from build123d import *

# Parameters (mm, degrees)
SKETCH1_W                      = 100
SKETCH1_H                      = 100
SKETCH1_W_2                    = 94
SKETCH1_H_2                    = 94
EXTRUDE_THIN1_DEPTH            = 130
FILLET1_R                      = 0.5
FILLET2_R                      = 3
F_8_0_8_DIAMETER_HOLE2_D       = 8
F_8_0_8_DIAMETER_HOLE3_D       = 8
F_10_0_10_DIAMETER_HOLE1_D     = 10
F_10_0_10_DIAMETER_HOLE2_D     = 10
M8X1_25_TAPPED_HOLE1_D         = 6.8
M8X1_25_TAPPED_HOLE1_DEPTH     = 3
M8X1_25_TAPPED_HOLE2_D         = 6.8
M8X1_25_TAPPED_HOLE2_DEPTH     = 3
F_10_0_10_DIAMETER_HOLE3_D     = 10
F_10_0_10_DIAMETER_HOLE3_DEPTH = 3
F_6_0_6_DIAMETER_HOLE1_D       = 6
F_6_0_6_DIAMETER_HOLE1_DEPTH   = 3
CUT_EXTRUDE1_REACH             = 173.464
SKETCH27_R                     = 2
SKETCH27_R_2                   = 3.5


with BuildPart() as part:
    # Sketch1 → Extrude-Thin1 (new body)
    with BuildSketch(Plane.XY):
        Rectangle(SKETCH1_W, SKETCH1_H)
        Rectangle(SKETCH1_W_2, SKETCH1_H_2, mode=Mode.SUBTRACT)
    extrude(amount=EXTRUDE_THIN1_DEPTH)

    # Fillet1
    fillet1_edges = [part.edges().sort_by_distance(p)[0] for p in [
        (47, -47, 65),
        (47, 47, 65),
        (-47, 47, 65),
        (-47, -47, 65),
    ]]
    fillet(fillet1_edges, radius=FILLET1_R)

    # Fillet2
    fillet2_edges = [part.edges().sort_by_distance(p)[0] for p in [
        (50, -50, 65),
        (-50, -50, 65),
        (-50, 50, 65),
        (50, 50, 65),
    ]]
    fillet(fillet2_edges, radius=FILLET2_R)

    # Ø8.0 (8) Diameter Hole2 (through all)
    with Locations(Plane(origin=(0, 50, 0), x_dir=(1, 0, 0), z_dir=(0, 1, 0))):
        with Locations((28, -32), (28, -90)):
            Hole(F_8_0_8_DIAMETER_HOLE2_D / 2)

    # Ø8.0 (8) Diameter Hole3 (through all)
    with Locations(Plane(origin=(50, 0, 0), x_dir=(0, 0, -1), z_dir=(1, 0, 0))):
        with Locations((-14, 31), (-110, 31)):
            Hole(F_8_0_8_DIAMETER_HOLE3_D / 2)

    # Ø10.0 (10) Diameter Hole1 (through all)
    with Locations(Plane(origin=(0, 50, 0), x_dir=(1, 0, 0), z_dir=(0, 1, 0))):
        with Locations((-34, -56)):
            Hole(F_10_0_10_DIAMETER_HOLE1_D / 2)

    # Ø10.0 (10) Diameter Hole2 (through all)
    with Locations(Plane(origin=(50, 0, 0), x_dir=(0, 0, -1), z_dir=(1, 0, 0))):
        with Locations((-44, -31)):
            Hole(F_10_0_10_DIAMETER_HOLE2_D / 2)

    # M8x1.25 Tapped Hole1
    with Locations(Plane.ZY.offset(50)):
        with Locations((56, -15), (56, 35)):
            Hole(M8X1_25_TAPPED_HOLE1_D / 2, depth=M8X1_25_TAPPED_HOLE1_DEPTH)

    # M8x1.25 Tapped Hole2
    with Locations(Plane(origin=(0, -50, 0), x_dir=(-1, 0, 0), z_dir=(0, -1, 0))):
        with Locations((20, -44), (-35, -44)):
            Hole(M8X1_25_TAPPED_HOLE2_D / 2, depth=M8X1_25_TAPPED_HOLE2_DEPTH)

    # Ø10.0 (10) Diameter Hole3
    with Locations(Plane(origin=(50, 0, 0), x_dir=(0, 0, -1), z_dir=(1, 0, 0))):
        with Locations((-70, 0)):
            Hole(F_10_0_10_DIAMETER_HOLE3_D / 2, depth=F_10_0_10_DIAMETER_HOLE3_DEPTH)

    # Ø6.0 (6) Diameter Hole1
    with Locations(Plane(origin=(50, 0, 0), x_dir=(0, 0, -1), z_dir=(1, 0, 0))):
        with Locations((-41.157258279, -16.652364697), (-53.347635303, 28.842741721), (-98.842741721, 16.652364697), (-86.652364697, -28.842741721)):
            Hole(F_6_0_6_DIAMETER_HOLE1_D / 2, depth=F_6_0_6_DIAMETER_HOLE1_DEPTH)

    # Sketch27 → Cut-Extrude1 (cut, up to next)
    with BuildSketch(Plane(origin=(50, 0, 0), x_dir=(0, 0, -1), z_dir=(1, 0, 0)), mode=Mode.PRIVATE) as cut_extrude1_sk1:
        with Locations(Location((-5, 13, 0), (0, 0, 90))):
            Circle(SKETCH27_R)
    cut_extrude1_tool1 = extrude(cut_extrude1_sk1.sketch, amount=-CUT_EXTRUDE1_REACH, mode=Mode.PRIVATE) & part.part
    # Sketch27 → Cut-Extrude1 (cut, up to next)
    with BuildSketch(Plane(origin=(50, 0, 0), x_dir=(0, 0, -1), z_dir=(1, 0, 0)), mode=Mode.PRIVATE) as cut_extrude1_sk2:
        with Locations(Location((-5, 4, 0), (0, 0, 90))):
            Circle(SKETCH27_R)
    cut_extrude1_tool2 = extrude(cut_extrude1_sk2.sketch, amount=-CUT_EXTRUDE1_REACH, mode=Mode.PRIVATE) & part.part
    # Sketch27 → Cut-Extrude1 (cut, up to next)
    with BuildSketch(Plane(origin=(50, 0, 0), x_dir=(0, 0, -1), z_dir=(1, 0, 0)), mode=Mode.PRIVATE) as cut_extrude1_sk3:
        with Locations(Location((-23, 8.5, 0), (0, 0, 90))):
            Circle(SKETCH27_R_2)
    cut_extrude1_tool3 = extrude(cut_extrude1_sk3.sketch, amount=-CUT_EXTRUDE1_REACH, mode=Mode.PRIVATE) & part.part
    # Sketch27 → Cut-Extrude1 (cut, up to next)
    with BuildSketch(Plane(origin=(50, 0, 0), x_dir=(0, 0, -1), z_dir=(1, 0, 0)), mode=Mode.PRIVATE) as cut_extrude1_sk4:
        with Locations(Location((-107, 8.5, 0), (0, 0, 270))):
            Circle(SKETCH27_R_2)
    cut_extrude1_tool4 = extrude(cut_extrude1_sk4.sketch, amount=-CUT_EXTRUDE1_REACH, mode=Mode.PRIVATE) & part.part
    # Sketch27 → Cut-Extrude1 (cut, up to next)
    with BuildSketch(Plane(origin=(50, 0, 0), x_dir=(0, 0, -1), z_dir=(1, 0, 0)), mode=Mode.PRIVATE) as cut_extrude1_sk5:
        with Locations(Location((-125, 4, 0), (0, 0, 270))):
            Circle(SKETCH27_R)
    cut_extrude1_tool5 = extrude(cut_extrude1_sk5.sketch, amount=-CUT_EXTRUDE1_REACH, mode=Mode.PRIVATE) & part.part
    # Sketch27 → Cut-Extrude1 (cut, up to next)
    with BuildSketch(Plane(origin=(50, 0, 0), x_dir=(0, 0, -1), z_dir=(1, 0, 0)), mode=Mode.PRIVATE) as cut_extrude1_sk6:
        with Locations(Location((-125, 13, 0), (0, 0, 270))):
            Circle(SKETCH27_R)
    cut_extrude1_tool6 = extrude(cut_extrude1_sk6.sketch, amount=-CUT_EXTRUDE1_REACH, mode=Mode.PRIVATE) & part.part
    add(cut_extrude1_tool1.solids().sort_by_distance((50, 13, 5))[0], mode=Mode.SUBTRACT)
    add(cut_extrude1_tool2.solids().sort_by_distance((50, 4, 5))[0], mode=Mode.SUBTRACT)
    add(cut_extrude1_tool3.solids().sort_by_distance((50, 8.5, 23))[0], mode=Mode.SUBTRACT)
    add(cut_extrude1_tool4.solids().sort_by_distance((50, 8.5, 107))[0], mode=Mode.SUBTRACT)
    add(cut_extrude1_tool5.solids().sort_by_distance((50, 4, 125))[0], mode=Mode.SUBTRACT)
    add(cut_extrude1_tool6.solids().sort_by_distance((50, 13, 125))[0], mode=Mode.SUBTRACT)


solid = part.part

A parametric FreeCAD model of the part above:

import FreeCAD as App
import Part
import Sketcher
Q = App.Units.Quantity


def edges_at(feature, points):
    """Names of the edges that pass closest to the given points."""
    edges = feature.Shape.Edges
    near = lambda p: min(range(len(edges)), key=lambda i: edges[i].distToShape(Part.Vertex(*p))[0])
    return sorted({f"Edge{near(p) + 1}" for p in points})


def add_polygon(sketch, points):
    """Adds a closed chain of lines whose ends are joined by coincident constraints."""
    first, n = sketch.GeometryCount, len(points)
    for a, b in zip(points, points[1:] + points[:1]):
        sketch.addGeometry(Part.LineSegment(App.Vector(*a, 0), App.Vector(*b, 0)), False)
    for i in range(n):
        sketch.addConstraint(Sketcher.Constraint("Coincident", first + i, 2, first + (i + 1) % n, 1))

doc = App.newDocument("Part")
params = doc.addObject("Spreadsheet::Sheet", "Params")
for row, (alias, value) in enumerate([
    ("sketch1_width", "100 mm"),
    ("sketch1_width2", "94 mm"),
    ("pad1_length", "130 mm"),
    ("fillet_radius", "0.5 mm"),
    ("fillet2_radius", "3 mm"),
    ("sketch2_diameter", "8 mm"),
    ("hole_diameter", "8 mm"),
    ("sketch3_diameter", "8 mm"),
    ("hole2_diameter", "8 mm"),
    ("sketch4_diameter", "10 mm"),
    ("hole3_diameter", "10 mm"),
    ("sketch5_diameter", "10 mm"),
    ("hole4_diameter", "10 mm"),
    ("sketch6_diameter", "6.8 mm"),
    ("hole5_diameter", "6.8 mm"),
    ("hole5_depth", "3 mm"),
    ("sketch7_diameter", "6.8 mm"),
    ("hole6_diameter", "6.8 mm"),
    ("hole6_depth", "3 mm"),
    ("sketch8_diameter", "10 mm"),
    ("hole7_diameter", "10 mm"),
    ("hole7_depth", "3 mm"),
    ("sketch9_diameter", "6 mm"),
    ("hole8_diameter", "6 mm"),
    ("hole8_depth", "3 mm"),
    ("sketch10_diameter", "4 mm"),
    ("sketch11_diameter", "4 mm"),
    ("sketch12_diameter", "7 mm"),
    ("sketch13_diameter", "7 mm"),
    ("sketch14_diameter", "4 mm"),
    ("sketch15_diameter", "4 mm"),
], start=1):
    params.set(f"A{row}", alias)
    params.set(f"B{row}", "=" + value)
    params.setAlias(f"B{row}", alias)

body = doc.addObject("PartDesign::Body", "Body")

# Sketch on XY plane
sketch1 = doc.addObject("Sketcher::SketchObject", "Sketch")
body.addObject(sketch1)
sketch1.AttachmentSupport = (doc.XY_Plane, [""])
sketch1.MapMode = "FlatFace"
add_polygon(sketch1, [(-50, 50), (-50, -50), (50, -50), (50, 50)])  # lines 0-3
add_polygon(sketch1, [(47, -47), (-47, -47), (-47, 47), (47, 47)])  # lines 4-7
sketch1.addConstraint(Sketcher.Constraint("Vertical", 0))
sketch1.addConstraint(Sketcher.Constraint("Horizontal", 1))
sketch1.addConstraint(Sketcher.Constraint("Vertical", 2))
sketch1.addConstraint(Sketcher.Constraint("Horizontal", 3))
sketch1.addConstraint(Sketcher.Constraint("Horizontal", 4))
sketch1.addConstraint(Sketcher.Constraint("Vertical", 5))
sketch1.addConstraint(Sketcher.Constraint("Horizontal", 6))
sketch1.addConstraint(Sketcher.Constraint("Vertical", 7))
sketch1.addConstraint(Sketcher.Constraint("Symmetric", 0, 2, 2, 2, -1, 1))
sketch1.addConstraint(Sketcher.Constraint("Symmetric", 4, 2, 6, 2, -1, 1))
sketch1.addConstraint(Sketcher.Constraint("Equal", 3, 0))
sketch1.addConstraint(Sketcher.Constraint("Equal", 6, 5))
sketch1.addConstraint(Sketcher.Constraint("DistanceX", 1, 1, 1, 2, Q("100 mm")))
sketch1.addConstraint(Sketcher.Constraint("DistanceX", 4, 2, 4, 1, Q("94 mm")))
sketch1.setExpression("Constraints[20]", "Params.sketch1_width")
sketch1.setExpression("Constraints[21]", "Params.sketch1_width2")
pad1 = doc.addObject("PartDesign::Pad", "Pad")
body.addObject(pad1)
pad1.Profile = sketch1
pad1.setExpression("Length", "Params.pad1_length")
doc.recompute()

fillet = doc.addObject("PartDesign::Fillet", "Fillet")
body.addObject(fillet)
fillet.Base = (pad1, edges_at(pad1, [
    (47, -47, 65),
    (47, 47, 65),
    (-47, 47, 65),
    (-47, -47, 65),
]))
fillet.setExpression("Radius", "Params.fillet_radius")
doc.recompute()

fillet2 = doc.addObject("PartDesign::Fillet", "Fillet001")
body.addObject(fillet2)
fillet2.Base = (fillet, edges_at(fillet, [
    (50, -50, 65),
    (-50, -50, 65),
    (-50, 50, 65),
    (50, 50, 65),
]))
fillet2.setExpression("Radius", "Params.fillet2_radius")

# Sketch on XZ plane
sketch2 = doc.addObject("Sketcher::SketchObject", "Sketch001")
body.addObject(sketch2)
sketch2.AttachmentSupport = (doc.XZ_Plane, [""])
sketch2.MapMode = "FlatFace"
sketch2.AttachmentOffset = App.Placement(App.Vector(0, 0, -50), App.Rotation())
sketch2.addGeometry(Part.Circle(App.Vector(28, 32, 0), App.Vector(0, 0, 1), 4), False)
sketch2.addGeometry(Part.Circle(App.Vector(28, 90, 0), App.Vector(0, 0, 1), 4), False)
sketch2.addConstraint(Sketcher.Constraint("Equal", 0, 1))
sketch2.addConstraint(Sketcher.Constraint("Vertical", 0, 3, 1, 3))
sketch2.addConstraint(Sketcher.Constraint("Diameter", 0, Q("8 mm")))
sketch2.addConstraint(Sketcher.Constraint("DistanceX", -1, 1, 0, 3, Q("28 mm")))
sketch2.addConstraint(Sketcher.Constraint("DistanceY", -1, 1, 0, 3, Q("32 mm")))
sketch2.addConstraint(Sketcher.Constraint("DistanceY", -1, 1, 1, 3, Q("90 mm")))
sketch2.setExpression("Constraints[2]", "Params.sketch2_diameter")
doc.recompute()
hole = doc.addObject("PartDesign::Hole", "Hole")
body.addObject(hole)
hole.Profile = sketch2
hole.ThreadType = "None"
hole.setExpression("Diameter", "Params.hole_diameter")
hole.DepthType = "ThroughAll"
hole.Reversed = True

# Sketch on YZ plane
sketch3 = doc.addObject("Sketcher::SketchObject", "Sketch002")
body.addObject(sketch3)
sketch3.AttachmentSupport = (doc.YZ_Plane, [""])
sketch3.MapMode = "FlatFace"
sketch3.AttachmentOffset = App.Placement(App.Vector(0, 0, 50), App.Rotation())
sketch3.addGeometry(Part.Circle(App.Vector(31, 14, 0), App.Vector(0, 0, 1), 4), False)
sketch3.addGeometry(Part.Circle(App.Vector(31, 110, 0), App.Vector(0, 0, 1), 4), False)
sketch3.addConstraint(Sketcher.Constraint("Equal", 0, 1))
sketch3.addConstraint(Sketcher.Constraint("Vertical", 0, 3, 1, 3))
sketch3.addConstraint(Sketcher.Constraint("Diameter", 0, Q("8 mm")))
sketch3.addConstraint(Sketcher.Constraint("DistanceX", -1, 1, 0, 3, Q("31 mm")))
sketch3.addConstraint(Sketcher.Constraint("DistanceY", -1, 1, 0, 3, Q("14 mm")))
sketch3.addConstraint(Sketcher.Constraint("DistanceY", -1, 1, 1, 3, Q("110 mm")))
sketch3.setExpression("Constraints[2]", "Params.sketch3_diameter")
doc.recompute()
hole2 = doc.addObject("PartDesign::Hole", "Hole001")
body.addObject(hole2)
hole2.Profile = sketch3
hole2.ThreadType = "None"
hole2.setExpression("Diameter", "Params.hole2_diameter")
hole2.DepthType = "ThroughAll"

# Sketch on XZ plane
sketch4 = doc.addObject("Sketcher::SketchObject", "Sketch003")
body.addObject(sketch4)
sketch4.AttachmentSupport = (doc.XZ_Plane, [""])
sketch4.MapMode = "FlatFace"
sketch4.AttachmentOffset = App.Placement(App.Vector(0, 0, -50), App.Rotation())
sketch4.addGeometry(Part.Circle(App.Vector(-34, 56, 0), App.Vector(0, 0, 1), 5), False)
sketch4.addConstraint(Sketcher.Constraint("Diameter", 0, Q("10 mm")))
sketch4.addConstraint(Sketcher.Constraint("DistanceX", 0, 3, -1, 1, Q("34 mm")))
sketch4.addConstraint(Sketcher.Constraint("DistanceY", -1, 1, 0, 3, Q("56 mm")))
sketch4.setExpression("Constraints[0]", "Params.sketch4_diameter")
doc.recompute()
hole3 = doc.addObject("PartDesign::Hole", "Hole002")
body.addObject(hole3)
hole3.Profile = sketch4
hole3.ThreadType = "None"
hole3.setExpression("Diameter", "Params.hole3_diameter")
hole3.DepthType = "ThroughAll"
hole3.Reversed = True

# Sketch on YZ plane
sketch5 = doc.addObject("Sketcher::SketchObject", "Sketch004")
body.addObject(sketch5)
sketch5.AttachmentSupport = (doc.YZ_Plane, [""])
sketch5.MapMode = "FlatFace"
sketch5.AttachmentOffset = App.Placement(App.Vector(0, 0, 50), App.Rotation())
sketch5.addGeometry(Part.Circle(App.Vector(-31, 44, 0), App.Vector(0, 0, 1), 5), False)
sketch5.addConstraint(Sketcher.Constraint("Diameter", 0, Q("10 mm")))
sketch5.addConstraint(Sketcher.Constraint("DistanceX", 0, 3, -1, 1, Q("31 mm")))
sketch5.addConstraint(Sketcher.Constraint("DistanceY", -1, 1, 0, 3, Q("44 mm")))
sketch5.setExpression("Constraints[0]", "Params.sketch5_diameter")
doc.recompute()
hole4 = doc.addObject("PartDesign::Hole", "Hole003")
body.addObject(hole4)
hole4.Profile = sketch5
hole4.ThreadType = "None"
hole4.setExpression("Diameter", "Params.hole4_diameter")
hole4.DepthType = "ThroughAll"

# Sketch on YZ plane
sketch6 = doc.addObject("Sketcher::SketchObject", "Sketch005")
body.addObject(sketch6)
sketch6.AttachmentSupport = (doc.YZ_Plane, [""])
sketch6.MapMode = "FlatFace"
sketch6.AttachmentOffset = App.Placement(App.Vector(0, 0, -50), App.Rotation())
sketch6.addGeometry(Part.Circle(App.Vector(-15, 56, 0), App.Vector(0, 0, 1), 3.4), False)
sketch6.addGeometry(Part.Circle(App.Vector(35, 56, 0), App.Vector(0, 0, 1), 3.4), False)
sketch6.addConstraint(Sketcher.Constraint("Equal", 0, 1))
sketch6.addConstraint(Sketcher.Constraint("Horizontal", 0, 3, 1, 3))
sketch6.addConstraint(Sketcher.Constraint("Diameter", 0, Q("6.8 mm")))
sketch6.addConstraint(Sketcher.Constraint("DistanceX", 0, 3, -1, 1, Q("15 mm")))
sketch6.addConstraint(Sketcher.Constraint("DistanceY", -1, 1, 0, 3, Q("56 mm")))
sketch6.addConstraint(Sketcher.Constraint("DistanceX", -1, 1, 1, 3, Q("35 mm")))
sketch6.setExpression("Constraints[2]", "Params.sketch6_diameter")
doc.recompute()
hole5 = doc.addObject("PartDesign::Hole", "Hole004")
body.addObject(hole5)
hole5.Profile = sketch6
hole5.ThreadType = "None"
hole5.setExpression("Diameter", "Params.hole5_diameter")
hole5.DepthType = "Dimension"
hole5.setExpression("Depth", "Params.hole5_depth")
hole5.DrillPoint = "Flat"
hole5.Reversed = True

# Sketch on XZ plane
sketch7 = doc.addObject("Sketcher::SketchObject", "Sketch006")
body.addObject(sketch7)
sketch7.AttachmentSupport = (doc.XZ_Plane, [""])
sketch7.MapMode = "FlatFace"
sketch7.AttachmentOffset = App.Placement(App.Vector(0, 0, 50), App.Rotation())
sketch7.addGeometry(Part.Circle(App.Vector(-20, 44, 0), App.Vector(0, 0, 1), 3.4), False)
sketch7.addGeometry(Part.Circle(App.Vector(35, 44, 0), App.Vector(0, 0, 1), 3.4), False)
sketch7.addConstraint(Sketcher.Constraint("Equal", 0, 1))
sketch7.addConstraint(Sketcher.Constraint("Horizontal", 0, 3, 1, 3))
sketch7.addConstraint(Sketcher.Constraint("Diameter", 0, Q("6.8 mm")))
sketch7.addConstraint(Sketcher.Constraint("DistanceX", 0, 3, -1, 1, Q("20 mm")))
sketch7.addConstraint(Sketcher.Constraint("DistanceY", -1, 1, 0, 3, Q("44 mm")))
sketch7.addConstraint(Sketcher.Constraint("DistanceX", -1, 1, 1, 3, Q("35 mm")))
sketch7.setExpression("Constraints[2]", "Params.sketch7_diameter")
doc.recompute()
hole6 = doc.addObject("PartDesign::Hole", "Hole005")
body.addObject(hole6)
hole6.Profile = sketch7
hole6.ThreadType = "None"
hole6.setExpression("Diameter", "Params.hole6_diameter")
hole6.DepthType = "Dimension"
hole6.setExpression("Depth", "Params.hole6_depth")
hole6.DrillPoint = "Flat"

# Sketch on YZ plane
sketch8 = doc.addObject("Sketcher::SketchObject", "Sketch007")
body.addObject(sketch8)
sketch8.AttachmentSupport = (doc.YZ_Plane, [""])
sketch8.MapMode = "FlatFace"
sketch8.AttachmentOffset = App.Placement(App.Vector(0, 0, 50), App.Rotation())
sketch8.addGeometry(Part.Circle(App.Vector(0, 70, 0), App.Vector(0, 0, 1), 5), False)
sketch8.addConstraint(Sketcher.Constraint("PointOnObject", 0, 3, -2))
sketch8.addConstraint(Sketcher.Constraint("Diameter", 0, Q("10 mm")))
sketch8.addConstraint(Sketcher.Constraint("DistanceY", -1, 1, 0, 3, Q("70 mm")))
sketch8.setExpression("Constraints[1]", "Params.sketch8_diameter")
doc.recompute()
hole7 = doc.addObject("PartDesign::Hole", "Hole006")
body.addObject(hole7)
hole7.Profile = sketch8
hole7.ThreadType = "None"
hole7.setExpression("Diameter", "Params.hole7_diameter")
hole7.DepthType = "Dimension"
hole7.setExpression("Depth", "Params.hole7_depth")
hole7.DrillPoint = "Flat"

# Sketch on YZ plane
sketch9 = doc.addObject("Sketcher::SketchObject", "Sketch008")
body.addObject(sketch9)
sketch9.AttachmentSupport = (doc.YZ_Plane, [""])
sketch9.MapMode = "FlatFace"
sketch9.AttachmentOffset = App.Placement(App.Vector(0, 0, 50), App.Rotation())
sketch9.addGeometry(Part.Circle(App.Vector(-16.652365, 41.157258, 0), App.Vector(0, 0, 1), 3), False)
sketch9.addGeometry(Part.Circle(App.Vector(28.842742, 53.347635, 0), App.Vector(0, 0, 1), 3), False)
sketch9.addGeometry(Part.Circle(App.Vector(16.652365, 98.842742, 0), App.Vector(0, 0, 1), 3), False)
sketch9.addGeometry(Part.Circle(App.Vector(-28.842742, 86.652365, 0), App.Vector(0, 0, 1), 3), False)
sketch9.addConstraint(Sketcher.Constraint("Equal", 0, 1))
sketch9.addConstraint(Sketcher.Constraint("Equal", 1, 2))
sketch9.addConstraint(Sketcher.Constraint("Equal", 2, 3))
sketch9.addConstraint(Sketcher.Constraint("Diameter", 0, Q("6 mm")))
sketch9.addConstraint(Sketcher.Constraint("DistanceY", -1, 1, 0, 3, Q("41.157258 mm")))
sketch9.addConstraint(Sketcher.Constraint("DistanceX", -1, 1, 1, 3, Q("28.842742 mm")))
sketch9.addConstraint(Sketcher.Constraint("DistanceY", -1, 1, 2, 3, Q("98.842742 mm")))
sketch9.addConstraint(Sketcher.Constraint("DistanceX", 3, 3, -1, 1, Q("28.842742 mm")))
sketch9.addConstraint(Sketcher.Constraint("DistanceX", 0, 3, 2, 3, Q("33.304729 mm")))
sketch9.addConstraint(Sketcher.Constraint("DistanceY", 1, 3, 3, 3, Q("33.304729 mm")))
sketch9.addConstraint(Sketcher.Constraint("DistanceX", 0, 3, -1, 1, Q("16.652365 mm")))
sketch9.addConstraint(Sketcher.Constraint("DistanceY", -1, 1, 1, 3, Q("53.347635 mm")))
sketch9.setExpression("Constraints[3]", "Params.sketch9_diameter")
doc.recompute()
hole8 = doc.addObject("PartDesign::Hole", "Hole007")
body.addObject(hole8)
hole8.Profile = sketch9
hole8.ThreadType = "None"
hole8.setExpression("Diameter", "Params.hole8_diameter")
hole8.DepthType = "Dimension"
hole8.setExpression("Depth", "Params.hole8_depth")
hole8.DrillPoint = "Flat"

# Sketch on YZ plane
sketch10 = doc.addObject("Sketcher::SketchObject", "Sketch009")
body.addObject(sketch10)
sketch10.AttachmentSupport = (doc.YZ_Plane, [""])
sketch10.MapMode = "FlatFace"
sketch10.AttachmentOffset = App.Placement(App.Vector(0, 0, 50), App.Rotation())
sketch10.addGeometry(Part.Circle(App.Vector(13, 5, 0), App.Vector(0, 0, 1), 2), False)
sketch10.addConstraint(Sketcher.Constraint("Diameter", 0, Q("4 mm")))
sketch10.addConstraint(Sketcher.Constraint("DistanceX", -1, 1, 0, 3, Q("13 mm")))
sketch10.addConstraint(Sketcher.Constraint("DistanceY", -1, 1, 0, 3, Q("5 mm")))
sketch10.setExpression("Constraints[0]", "Params.sketch10_diameter")
pocket1 = doc.addObject("PartDesign::Pocket", "Pocket")
body.addObject(pocket1)
pocket1.Profile = sketch10
pocket1.Type = "UpToFirst"

# Sketch on YZ plane
sketch11 = doc.addObject("Sketcher::SketchObject", "Sketch010")
body.addObject(sketch11)
sketch11.AttachmentSupport = (doc.YZ_Plane, [""])
sketch11.MapMode = "FlatFace"
sketch11.AttachmentOffset = App.Placement(App.Vector(0, 0, 50), App.Rotation())
sketch11.addGeometry(Part.Circle(App.Vector(4, 5, 0), App.Vector(0, 0, 1), 2), False)
sketch11.addConstraint(Sketcher.Constraint("Diameter", 0, Q("4 mm")))
sketch11.addConstraint(Sketcher.Constraint("DistanceX", -1, 1, 0, 3, Q("4 mm")))
sketch11.addConstraint(Sketcher.Constraint("DistanceY", -1, 1, 0, 3, Q("5 mm")))
sketch11.setExpression("Constraints[0]", "Params.sketch11_diameter")
pocket2 = doc.addObject("PartDesign::Pocket", "Pocket001")
body.addObject(pocket2)
pocket2.Profile = sketch11
pocket2.Type = "UpToFirst"

# Sketch on YZ plane
sketch12 = doc.addObject("Sketcher::SketchObject", "Sketch011")
body.addObject(sketch12)
sketch12.AttachmentSupport = (doc.YZ_Plane, [""])
sketch12.MapMode = "FlatFace"
sketch12.AttachmentOffset = App.Placement(App.Vector(0, 0, 50), App.Rotation())
sketch12.addGeometry(Part.Circle(App.Vector(8.5, 23, 0), App.Vector(0, 0, 1), 3.5), False)
sketch12.addConstraint(Sketcher.Constraint("Diameter", 0, Q("7 mm")))
sketch12.addConstraint(Sketcher.Constraint("DistanceY", -1, 1, 0, 3, Q("23 mm")))
sketch12.addConstraint(Sketcher.Constraint("DistanceX", -1, 1, 0, 3, Q("8.5 mm")))
sketch12.setExpression("Constraints[0]", "Params.sketch12_diameter")
pocket3 = doc.addObject("PartDesign::Pocket", "Pocket002")
body.addObject(pocket3)
pocket3.Profile = sketch12
pocket3.Type = "UpToFirst"

# Sketch on YZ plane
sketch13 = doc.addObject("Sketcher::SketchObject", "Sketch012")
body.addObject(sketch13)
sketch13.AttachmentSupport = (doc.YZ_Plane, [""])
sketch13.MapMode = "FlatFace"
sketch13.AttachmentOffset = App.Placement(App.Vector(0, 0, 50), App.Rotation())
sketch13.addGeometry(Part.Circle(App.Vector(8.5, 107, 0), App.Vector(0, 0, 1), 3.5), False)
sketch13.addConstraint(Sketcher.Constraint("Diameter", 0, Q("7 mm")))
sketch13.addConstraint(Sketcher.Constraint("DistanceY", -1, 1, 0, 3, Q("107 mm")))
sketch13.addConstraint(Sketcher.Constraint("DistanceX", -1, 1, 0, 3, Q("8.5 mm")))
sketch13.setExpression("Constraints[0]", "Params.sketch13_diameter")
pocket4 = doc.addObject("PartDesign::Pocket", "Pocket003")
body.addObject(pocket4)
pocket4.Profile = sketch13
pocket4.Type = "UpToFirst"

# Sketch on YZ plane
sketch14 = doc.addObject("Sketcher::SketchObject", "Sketch013")
body.addObject(sketch14)
sketch14.AttachmentSupport = (doc.YZ_Plane, [""])
sketch14.MapMode = "FlatFace"
sketch14.AttachmentOffset = App.Placement(App.Vector(0, 0, 50), App.Rotation())
sketch14.addGeometry(Part.Circle(App.Vector(4, 125, 0), App.Vector(0, 0, 1), 2), False)
sketch14.addConstraint(Sketcher.Constraint("Diameter", 0, Q("4 mm")))
sketch14.addConstraint(Sketcher.Constraint("DistanceX", -1, 1, 0, 3, Q("4 mm")))
sketch14.addConstraint(Sketcher.Constraint("DistanceY", -1, 1, 0, 3, Q("125 mm")))
sketch14.setExpression("Constraints[0]", "Params.sketch14_diameter")
pocket5 = doc.addObject("PartDesign::Pocket", "Pocket004")
body.addObject(pocket5)
pocket5.Profile = sketch14
pocket5.Type = "UpToFirst"

# Sketch on YZ plane
sketch15 = doc.addObject("Sketcher::SketchObject", "Sketch014")
body.addObject(sketch15)
sketch15.AttachmentSupport = (doc.YZ_Plane, [""])
sketch15.MapMode = "FlatFace"
sketch15.AttachmentOffset = App.Placement(App.Vector(0, 0, 50), App.Rotation())
sketch15.addGeometry(Part.Circle(App.Vector(13, 125, 0), App.Vector(0, 0, 1), 2), False)
sketch15.addConstraint(Sketcher.Constraint("Diameter", 0, Q("4 mm")))
sketch15.addConstraint(Sketcher.Constraint("DistanceX", -1, 1, 0, 3, Q("13 mm")))
sketch15.addConstraint(Sketcher.Constraint("DistanceY", -1, 1, 0, 3, Q("125 mm")))
sketch15.setExpression("Constraints[0]", "Params.sketch15_diameter")
pocket6 = doc.addObject("PartDesign::Pocket", "Pocket005")
body.addObject(pocket6)
pocket6.Profile = sketch15
pocket6.Type = "UpToFirst"

doc.recompute()
